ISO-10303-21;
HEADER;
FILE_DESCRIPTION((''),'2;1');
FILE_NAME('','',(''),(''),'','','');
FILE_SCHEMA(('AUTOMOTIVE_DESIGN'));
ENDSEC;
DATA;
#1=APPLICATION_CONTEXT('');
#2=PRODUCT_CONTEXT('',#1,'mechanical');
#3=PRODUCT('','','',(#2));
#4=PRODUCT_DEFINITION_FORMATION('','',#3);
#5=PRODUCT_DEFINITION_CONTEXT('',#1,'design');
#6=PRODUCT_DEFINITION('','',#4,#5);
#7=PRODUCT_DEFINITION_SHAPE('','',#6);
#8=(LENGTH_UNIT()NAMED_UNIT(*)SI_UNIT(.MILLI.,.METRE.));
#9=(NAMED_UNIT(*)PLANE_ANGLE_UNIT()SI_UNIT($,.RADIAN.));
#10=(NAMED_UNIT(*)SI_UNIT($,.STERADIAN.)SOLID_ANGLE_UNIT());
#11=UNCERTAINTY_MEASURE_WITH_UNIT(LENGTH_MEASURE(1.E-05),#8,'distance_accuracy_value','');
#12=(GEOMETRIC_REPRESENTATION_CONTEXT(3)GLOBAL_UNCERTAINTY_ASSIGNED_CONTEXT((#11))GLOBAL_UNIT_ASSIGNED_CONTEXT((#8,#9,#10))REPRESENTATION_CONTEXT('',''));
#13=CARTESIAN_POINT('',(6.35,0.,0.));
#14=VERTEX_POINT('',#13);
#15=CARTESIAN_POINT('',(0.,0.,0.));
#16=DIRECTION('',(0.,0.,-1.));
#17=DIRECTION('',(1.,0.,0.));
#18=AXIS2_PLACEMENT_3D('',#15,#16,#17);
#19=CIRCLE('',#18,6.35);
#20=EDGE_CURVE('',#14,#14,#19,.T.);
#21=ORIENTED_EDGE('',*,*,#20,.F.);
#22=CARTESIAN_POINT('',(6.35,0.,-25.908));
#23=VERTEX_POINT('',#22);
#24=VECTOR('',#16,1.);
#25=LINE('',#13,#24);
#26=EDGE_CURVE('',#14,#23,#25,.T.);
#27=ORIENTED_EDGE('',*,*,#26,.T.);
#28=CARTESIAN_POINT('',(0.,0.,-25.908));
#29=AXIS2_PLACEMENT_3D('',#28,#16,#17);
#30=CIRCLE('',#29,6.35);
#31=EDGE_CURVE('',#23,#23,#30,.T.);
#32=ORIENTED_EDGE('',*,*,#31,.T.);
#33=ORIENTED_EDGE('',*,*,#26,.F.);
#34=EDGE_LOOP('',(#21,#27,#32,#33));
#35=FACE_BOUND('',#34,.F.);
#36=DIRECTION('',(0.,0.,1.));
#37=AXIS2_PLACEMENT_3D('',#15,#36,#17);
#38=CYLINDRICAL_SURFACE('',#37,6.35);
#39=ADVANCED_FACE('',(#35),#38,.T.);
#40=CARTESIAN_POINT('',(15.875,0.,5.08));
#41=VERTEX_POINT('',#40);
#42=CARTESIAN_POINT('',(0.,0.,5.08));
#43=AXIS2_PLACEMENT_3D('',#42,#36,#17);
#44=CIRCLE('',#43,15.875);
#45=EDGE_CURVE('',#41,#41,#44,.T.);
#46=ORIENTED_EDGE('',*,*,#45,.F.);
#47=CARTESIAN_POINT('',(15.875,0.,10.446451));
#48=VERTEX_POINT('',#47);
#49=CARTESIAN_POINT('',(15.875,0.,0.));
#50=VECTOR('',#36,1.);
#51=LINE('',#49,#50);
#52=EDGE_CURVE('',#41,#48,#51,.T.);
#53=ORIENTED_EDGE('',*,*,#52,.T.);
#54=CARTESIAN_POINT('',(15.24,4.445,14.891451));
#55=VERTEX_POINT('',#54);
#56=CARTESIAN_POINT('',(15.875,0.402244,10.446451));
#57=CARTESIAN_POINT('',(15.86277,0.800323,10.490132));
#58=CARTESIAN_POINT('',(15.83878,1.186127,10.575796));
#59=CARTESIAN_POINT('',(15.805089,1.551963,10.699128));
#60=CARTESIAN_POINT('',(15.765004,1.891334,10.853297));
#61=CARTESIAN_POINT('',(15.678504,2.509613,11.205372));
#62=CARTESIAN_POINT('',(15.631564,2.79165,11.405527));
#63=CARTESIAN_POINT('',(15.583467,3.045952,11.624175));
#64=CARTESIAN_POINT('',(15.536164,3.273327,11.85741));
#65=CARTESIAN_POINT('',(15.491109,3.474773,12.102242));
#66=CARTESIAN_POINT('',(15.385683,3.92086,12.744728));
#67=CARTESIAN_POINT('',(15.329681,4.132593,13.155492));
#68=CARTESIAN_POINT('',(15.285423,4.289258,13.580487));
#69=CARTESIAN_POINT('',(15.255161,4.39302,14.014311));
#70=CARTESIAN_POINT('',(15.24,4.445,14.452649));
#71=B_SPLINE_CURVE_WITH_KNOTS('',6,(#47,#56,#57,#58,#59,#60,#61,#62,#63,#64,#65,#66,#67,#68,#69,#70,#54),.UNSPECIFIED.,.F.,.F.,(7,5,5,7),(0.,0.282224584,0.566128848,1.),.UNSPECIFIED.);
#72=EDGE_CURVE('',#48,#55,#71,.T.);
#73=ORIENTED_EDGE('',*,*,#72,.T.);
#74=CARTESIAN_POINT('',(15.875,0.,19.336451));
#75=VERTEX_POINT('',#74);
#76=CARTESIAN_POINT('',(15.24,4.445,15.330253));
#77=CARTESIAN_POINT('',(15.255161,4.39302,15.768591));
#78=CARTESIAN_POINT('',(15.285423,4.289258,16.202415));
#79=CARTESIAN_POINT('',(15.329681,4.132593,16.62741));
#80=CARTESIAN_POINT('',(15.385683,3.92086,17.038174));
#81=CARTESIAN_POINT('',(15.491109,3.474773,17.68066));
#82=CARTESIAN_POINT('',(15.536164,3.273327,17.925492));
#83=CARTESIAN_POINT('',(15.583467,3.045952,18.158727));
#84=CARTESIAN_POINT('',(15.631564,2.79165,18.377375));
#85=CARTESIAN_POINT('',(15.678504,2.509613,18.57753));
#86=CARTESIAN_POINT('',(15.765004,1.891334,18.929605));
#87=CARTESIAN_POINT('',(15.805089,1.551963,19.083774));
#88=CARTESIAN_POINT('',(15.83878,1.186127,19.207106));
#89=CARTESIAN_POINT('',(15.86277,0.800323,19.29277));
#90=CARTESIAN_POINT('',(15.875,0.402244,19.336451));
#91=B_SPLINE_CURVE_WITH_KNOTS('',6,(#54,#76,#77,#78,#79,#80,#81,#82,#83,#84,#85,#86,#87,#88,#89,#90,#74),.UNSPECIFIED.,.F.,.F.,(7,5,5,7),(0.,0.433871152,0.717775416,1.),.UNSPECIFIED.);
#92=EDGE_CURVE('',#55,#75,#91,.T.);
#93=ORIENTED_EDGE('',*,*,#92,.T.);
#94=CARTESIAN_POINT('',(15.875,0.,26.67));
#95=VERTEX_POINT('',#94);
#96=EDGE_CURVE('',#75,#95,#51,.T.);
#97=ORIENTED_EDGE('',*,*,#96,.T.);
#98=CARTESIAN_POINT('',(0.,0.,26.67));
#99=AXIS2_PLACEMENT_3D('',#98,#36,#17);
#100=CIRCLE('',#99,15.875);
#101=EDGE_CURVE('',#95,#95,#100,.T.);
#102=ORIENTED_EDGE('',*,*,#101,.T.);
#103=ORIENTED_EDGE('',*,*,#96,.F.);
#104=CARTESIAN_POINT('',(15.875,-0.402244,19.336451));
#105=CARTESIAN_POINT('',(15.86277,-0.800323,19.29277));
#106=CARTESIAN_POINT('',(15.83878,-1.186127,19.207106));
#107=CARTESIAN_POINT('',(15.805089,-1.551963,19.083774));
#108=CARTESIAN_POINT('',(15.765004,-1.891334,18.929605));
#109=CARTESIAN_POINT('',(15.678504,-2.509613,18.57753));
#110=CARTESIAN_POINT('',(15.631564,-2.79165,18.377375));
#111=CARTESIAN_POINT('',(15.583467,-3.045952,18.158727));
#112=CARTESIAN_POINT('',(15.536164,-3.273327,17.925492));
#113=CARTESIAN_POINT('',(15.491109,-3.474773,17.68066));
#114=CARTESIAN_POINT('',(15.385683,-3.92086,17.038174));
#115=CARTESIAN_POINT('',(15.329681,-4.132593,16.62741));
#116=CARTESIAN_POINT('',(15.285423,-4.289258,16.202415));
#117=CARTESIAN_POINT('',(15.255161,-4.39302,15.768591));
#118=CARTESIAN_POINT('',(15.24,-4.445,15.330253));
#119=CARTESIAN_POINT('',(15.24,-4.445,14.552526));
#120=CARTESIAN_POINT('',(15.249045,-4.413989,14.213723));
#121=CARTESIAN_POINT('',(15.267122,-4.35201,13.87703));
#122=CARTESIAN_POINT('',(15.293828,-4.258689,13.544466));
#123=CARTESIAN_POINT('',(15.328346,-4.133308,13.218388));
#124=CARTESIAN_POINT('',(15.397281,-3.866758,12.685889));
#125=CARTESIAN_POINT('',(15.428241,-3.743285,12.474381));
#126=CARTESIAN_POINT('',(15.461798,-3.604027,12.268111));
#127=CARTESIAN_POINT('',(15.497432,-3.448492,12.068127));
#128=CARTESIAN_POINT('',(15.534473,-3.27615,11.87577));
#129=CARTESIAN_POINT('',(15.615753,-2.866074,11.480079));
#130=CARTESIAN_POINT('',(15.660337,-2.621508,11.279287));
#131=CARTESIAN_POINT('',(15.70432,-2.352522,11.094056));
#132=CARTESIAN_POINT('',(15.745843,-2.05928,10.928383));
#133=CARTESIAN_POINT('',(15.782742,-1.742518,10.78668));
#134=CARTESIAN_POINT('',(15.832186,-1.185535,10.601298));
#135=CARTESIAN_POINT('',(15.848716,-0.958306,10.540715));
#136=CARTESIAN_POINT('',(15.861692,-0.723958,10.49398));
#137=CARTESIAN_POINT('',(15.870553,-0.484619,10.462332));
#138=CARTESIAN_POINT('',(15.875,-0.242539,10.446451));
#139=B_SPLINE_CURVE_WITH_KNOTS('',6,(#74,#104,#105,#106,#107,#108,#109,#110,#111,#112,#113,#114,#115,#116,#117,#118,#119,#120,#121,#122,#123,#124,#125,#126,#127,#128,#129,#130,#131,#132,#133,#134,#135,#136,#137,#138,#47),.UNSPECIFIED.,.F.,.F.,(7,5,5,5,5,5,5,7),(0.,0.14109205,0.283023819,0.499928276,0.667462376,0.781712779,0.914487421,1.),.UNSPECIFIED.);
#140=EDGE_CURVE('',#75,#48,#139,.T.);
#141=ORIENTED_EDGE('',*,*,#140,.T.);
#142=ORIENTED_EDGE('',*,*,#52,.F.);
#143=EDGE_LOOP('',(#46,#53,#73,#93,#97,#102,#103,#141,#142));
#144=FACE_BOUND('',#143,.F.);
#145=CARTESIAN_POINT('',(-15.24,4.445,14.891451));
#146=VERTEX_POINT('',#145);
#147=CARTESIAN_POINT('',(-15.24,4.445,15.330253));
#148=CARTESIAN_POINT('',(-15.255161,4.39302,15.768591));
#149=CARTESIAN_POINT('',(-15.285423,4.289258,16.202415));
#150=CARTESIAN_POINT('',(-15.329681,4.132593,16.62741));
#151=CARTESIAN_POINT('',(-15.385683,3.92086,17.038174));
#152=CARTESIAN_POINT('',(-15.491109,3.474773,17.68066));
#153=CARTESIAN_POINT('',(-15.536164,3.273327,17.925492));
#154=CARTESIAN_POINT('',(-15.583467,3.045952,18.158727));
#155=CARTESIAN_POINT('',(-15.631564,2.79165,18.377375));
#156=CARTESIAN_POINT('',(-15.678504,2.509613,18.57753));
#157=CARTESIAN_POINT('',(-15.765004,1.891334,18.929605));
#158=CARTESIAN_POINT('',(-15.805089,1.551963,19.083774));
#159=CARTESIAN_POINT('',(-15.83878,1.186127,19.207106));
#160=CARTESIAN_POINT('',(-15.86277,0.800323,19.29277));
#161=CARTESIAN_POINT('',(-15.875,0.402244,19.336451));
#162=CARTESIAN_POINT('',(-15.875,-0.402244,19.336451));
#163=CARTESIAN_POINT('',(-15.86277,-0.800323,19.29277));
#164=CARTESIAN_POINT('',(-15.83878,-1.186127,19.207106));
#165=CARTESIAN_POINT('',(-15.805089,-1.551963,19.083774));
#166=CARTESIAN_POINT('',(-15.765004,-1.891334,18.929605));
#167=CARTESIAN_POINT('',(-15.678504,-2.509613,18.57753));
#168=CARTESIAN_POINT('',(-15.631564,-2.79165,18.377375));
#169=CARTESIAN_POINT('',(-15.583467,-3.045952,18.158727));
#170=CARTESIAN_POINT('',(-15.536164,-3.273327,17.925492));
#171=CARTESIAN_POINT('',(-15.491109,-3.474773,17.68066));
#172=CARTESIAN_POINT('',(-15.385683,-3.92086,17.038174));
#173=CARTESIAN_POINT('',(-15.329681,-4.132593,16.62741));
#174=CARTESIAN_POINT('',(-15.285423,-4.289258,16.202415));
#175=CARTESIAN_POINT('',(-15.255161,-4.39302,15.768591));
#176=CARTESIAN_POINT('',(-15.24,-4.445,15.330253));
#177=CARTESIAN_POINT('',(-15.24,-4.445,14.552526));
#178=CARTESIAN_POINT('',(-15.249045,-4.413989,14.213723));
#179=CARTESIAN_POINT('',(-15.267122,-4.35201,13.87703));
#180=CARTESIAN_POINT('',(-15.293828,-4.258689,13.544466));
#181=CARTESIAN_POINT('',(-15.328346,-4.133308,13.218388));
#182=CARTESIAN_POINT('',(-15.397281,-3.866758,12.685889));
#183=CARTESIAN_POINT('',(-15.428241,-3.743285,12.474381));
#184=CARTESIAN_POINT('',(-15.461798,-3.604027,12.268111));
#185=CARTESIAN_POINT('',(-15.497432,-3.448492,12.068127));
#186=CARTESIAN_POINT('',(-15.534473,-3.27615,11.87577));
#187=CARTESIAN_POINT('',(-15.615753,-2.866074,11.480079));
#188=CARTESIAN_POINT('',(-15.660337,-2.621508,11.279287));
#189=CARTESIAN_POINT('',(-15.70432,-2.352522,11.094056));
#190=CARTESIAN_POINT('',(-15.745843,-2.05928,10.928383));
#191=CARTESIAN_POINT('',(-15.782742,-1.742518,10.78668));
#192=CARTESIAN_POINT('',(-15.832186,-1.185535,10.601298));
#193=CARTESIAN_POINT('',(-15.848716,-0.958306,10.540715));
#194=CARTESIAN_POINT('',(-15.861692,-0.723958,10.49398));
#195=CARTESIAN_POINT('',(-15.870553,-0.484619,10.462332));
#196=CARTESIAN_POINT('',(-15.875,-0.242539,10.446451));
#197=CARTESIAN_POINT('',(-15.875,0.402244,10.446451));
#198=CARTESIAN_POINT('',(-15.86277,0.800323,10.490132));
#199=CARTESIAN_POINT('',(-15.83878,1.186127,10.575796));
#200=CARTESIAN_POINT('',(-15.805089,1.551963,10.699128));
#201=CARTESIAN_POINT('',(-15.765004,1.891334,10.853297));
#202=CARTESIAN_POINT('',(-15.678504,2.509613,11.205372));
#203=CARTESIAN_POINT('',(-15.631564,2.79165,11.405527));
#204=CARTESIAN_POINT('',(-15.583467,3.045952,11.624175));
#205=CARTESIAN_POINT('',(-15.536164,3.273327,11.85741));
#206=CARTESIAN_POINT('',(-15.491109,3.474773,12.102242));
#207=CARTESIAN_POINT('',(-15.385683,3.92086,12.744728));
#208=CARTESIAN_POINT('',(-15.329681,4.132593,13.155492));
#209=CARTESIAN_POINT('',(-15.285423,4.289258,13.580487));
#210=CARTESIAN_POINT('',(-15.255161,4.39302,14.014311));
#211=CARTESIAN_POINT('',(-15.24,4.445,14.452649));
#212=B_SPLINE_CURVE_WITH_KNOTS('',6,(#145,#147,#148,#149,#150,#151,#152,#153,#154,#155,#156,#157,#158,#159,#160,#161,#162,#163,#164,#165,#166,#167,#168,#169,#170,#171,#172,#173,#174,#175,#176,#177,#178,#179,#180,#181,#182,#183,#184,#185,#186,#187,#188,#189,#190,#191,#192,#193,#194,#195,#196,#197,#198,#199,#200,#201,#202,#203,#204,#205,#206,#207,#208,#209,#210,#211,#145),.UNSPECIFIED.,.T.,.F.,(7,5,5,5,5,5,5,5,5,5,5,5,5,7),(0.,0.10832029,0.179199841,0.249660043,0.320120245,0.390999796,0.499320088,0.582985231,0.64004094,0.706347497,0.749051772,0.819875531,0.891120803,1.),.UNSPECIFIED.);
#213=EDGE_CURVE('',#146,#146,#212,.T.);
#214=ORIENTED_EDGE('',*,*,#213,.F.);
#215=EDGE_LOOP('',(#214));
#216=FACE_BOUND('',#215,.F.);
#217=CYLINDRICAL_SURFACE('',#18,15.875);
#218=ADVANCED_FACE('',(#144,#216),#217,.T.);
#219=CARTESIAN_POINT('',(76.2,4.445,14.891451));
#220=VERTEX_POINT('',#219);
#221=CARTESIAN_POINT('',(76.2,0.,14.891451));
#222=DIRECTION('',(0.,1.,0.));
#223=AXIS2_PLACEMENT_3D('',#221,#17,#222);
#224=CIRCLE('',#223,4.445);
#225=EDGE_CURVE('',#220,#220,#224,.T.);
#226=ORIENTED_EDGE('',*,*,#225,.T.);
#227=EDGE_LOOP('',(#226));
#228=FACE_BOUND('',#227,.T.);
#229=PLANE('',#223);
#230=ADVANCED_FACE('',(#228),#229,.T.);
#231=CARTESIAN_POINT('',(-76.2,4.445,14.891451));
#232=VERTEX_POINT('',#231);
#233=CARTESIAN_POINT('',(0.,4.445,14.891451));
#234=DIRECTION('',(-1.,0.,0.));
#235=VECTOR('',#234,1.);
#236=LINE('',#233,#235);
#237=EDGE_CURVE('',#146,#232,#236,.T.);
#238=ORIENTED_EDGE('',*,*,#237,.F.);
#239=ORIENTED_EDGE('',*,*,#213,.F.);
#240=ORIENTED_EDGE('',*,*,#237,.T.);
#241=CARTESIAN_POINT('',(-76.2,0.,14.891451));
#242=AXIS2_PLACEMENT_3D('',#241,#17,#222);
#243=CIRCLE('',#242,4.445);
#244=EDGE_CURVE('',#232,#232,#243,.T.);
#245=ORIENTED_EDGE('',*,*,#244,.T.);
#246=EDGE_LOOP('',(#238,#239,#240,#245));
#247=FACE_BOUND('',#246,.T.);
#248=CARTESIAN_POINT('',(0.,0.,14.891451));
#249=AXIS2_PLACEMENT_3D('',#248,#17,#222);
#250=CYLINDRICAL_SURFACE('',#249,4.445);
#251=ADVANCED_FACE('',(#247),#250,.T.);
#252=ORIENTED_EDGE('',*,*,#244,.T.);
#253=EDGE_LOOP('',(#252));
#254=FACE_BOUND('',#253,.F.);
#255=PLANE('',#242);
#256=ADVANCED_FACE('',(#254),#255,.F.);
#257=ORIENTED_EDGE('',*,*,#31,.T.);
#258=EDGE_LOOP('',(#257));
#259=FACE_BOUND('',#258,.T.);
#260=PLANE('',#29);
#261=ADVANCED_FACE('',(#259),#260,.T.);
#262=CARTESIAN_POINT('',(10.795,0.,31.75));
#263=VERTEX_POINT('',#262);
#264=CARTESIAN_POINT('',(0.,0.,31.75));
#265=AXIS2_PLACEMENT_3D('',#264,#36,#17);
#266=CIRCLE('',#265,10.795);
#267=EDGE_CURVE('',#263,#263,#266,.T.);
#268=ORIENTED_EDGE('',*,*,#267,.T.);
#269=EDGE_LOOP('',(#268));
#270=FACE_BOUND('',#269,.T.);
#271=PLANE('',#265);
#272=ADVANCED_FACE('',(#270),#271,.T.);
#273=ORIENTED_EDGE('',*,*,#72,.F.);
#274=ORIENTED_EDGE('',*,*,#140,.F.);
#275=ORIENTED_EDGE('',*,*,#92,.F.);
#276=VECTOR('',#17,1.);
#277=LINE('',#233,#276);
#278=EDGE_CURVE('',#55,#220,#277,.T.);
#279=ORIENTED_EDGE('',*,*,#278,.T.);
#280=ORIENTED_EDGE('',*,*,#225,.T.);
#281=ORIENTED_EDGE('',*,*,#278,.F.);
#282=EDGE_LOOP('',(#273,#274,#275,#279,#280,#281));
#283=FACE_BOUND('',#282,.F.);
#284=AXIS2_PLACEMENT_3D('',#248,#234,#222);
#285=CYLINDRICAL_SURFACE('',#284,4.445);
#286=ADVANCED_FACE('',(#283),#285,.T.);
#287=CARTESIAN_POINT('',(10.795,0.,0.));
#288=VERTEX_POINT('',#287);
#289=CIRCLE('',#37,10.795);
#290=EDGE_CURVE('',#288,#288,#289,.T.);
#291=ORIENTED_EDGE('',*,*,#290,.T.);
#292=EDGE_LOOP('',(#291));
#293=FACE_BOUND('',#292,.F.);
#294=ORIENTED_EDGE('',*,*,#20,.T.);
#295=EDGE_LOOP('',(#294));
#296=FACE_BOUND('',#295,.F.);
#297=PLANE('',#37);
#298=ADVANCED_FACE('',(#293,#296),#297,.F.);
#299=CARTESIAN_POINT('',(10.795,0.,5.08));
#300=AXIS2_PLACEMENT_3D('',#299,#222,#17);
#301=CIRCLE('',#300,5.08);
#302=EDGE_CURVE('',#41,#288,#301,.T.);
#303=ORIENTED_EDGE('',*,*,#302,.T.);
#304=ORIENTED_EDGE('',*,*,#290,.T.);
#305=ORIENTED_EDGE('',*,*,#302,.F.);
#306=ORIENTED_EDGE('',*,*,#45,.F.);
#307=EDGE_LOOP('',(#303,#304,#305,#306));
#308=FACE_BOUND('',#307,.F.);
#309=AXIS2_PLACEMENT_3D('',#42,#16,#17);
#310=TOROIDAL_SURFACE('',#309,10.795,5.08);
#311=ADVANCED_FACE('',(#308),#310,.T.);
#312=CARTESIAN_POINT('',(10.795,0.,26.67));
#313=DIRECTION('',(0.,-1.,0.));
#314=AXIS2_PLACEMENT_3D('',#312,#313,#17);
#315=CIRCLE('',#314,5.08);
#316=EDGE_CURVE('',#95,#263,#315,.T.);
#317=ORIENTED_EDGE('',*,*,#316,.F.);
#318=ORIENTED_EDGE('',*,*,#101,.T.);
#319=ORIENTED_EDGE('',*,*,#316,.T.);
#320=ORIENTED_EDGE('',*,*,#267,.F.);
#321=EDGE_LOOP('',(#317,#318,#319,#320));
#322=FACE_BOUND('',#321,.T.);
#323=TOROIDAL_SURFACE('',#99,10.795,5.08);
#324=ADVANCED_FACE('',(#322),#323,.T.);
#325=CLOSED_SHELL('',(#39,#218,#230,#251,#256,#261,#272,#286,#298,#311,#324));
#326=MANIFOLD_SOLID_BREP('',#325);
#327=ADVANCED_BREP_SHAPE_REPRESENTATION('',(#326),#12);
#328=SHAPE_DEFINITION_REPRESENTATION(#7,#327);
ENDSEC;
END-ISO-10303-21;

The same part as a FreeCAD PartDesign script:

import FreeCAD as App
import Part
import Sketcher
Q = App.Units.Quantity


def edges_at(feature, points):
    """Names of the edges that pass closest to the given points."""
    edges = feature.Shape.Edges
    near = lambda p: min(range(len(edges)), key=lambda i: edges[i].distToShape(Part.Vertex(*p))[0])
    return sorted({f"Edge{near(p) + 1}" for p in points})

doc = App.newDocument("Part")
params = doc.addObject("Spreadsheet::Sheet", "Params")
for row, (alias, value) in enumerate([
    ("sketch1_diameter", "1.25 in"),
    ("pad1_length", "1.25 in"),
    ("sketch2_diameter", "0.35 in"),
    ("pad2_length", "3 in"),
    ("sketch3_diameter", "0.35 in"),
    ("pad3_length", "3 in"),
    ("sketch4_diameter", "0.5 in"),
    ("pad4_length", "1.02 in"),
    ("fillet_radius", "0.2 in"),
], start=1):
    params.set(f"A{row}", alias)
    params.set(f"B{row}", "=" + value)
    params.setAlias(f"B{row}", alias)

body = doc.addObject("PartDesign::Body", "Body")

# Sketch on XY plane
sketch1 = body.newObject("Sketcher::SketchObject", "Sketch")
sketch1.AttachmentSupport = (doc.getObject("XY_Plane"), [""])
sketch1.MapMode = "FlatFace"
sketch1.addGeometry(Part.Circle(App.Vector(0, 0, 0), App.Vector(0, 0, 1), 15.875), False)
sketch1.addConstraint(Sketcher.Constraint("Coincident", 0, 3, -1, 1))
sketch1.addConstraint(Sketcher.Constraint("Diameter", 0, Q("1.25 in")))
sketch1.setExpression("Constraints[1]", "Params.sketch1_diameter")
pad1 = body.newObject("PartDesign::Pad", "Pad")
pad1.Profile = sketch1
pad1.setExpression("Length", "Params.pad1_length")

# Sketch on YZ plane
sketch2 = body.newObject("Sketcher::SketchObject", "Sketch001")
sketch2.AttachmentSupport = (doc.getObject("YZ_Plane"), [""])
sketch2.MapMode = "FlatFace"
sketch2.addGeometry(Part.Circle(App.Vector(0, 14.891451, 0), App.Vector(0, 0, 1), 4.445), False)
sketch2.addConstraint(Sketcher.Constraint("PointOnObject", 0, 3, -2))
sketch2.addConstraint(Sketcher.Constraint("Diameter", 0, Q("0.35 in")))
sketch2.addConstraint(Sketcher.Constraint("DistanceY", -1, 1, 0, 3, 14.891451))
sketch2.setExpression("Constraints[1]", "Params.sketch2_diameter")
pad2 = body.newObject("PartDesign::Pad", "Pad001")
pad2.Profile = sketch2
pad2.setExpression("Length", "Params.pad2_length")

# Sketch on YZ plane
sketch3 = body.newObject("Sketcher::SketchObject", "Sketch002")
sketch3.AttachmentSupport = (doc.getObject("YZ_Plane"), [""])
sketch3.MapMode = "FlatFace"
sketch3.addGeometry(Part.Circle(App.Vector(0, 14.891451, 0), App.Vector(0, 0, 1), 4.445), False)
sketch3.addConstraint(Sketcher.Constraint("PointOnObject", 0, 3, -2))
sketch3.addConstraint(Sketcher.Constraint("Diameter", 0, Q("0.35 in")))
sketch3.addConstraint(Sketcher.Constraint("DistanceY", -1, 1, 0, 3, 14.891451))
sketch3.setExpression("Constraints[1]", "Params.sketch3_diameter")
pad3 = body.newObject("PartDesign::Pad", "Pad002")
pad3.Profile = sketch3
pad3.setExpression("Length", "Params.pad3_length")
pad3.Reversed = True

# Sketch on XY plane
sketch4 = body.newObject("Sketcher::SketchObject", "Sketch003")
sketch4.AttachmentSupport = (doc.getObject("XY_Plane"), [""])
sketch4.MapMode = "FlatFace"
sketch4.addGeometry(Part.Circle(App.Vector(0, 0, 0), App.Vector(0, 0, 1), 6.35), False)
sketch4.addConstraint(Sketcher.Constraint("Coincident", 0, 3, -1, 1))
sketch4.addConstraint(Sketcher.Constraint("Diameter", 0, Q("0.5 in")))
sketch4.setExpression("Constraints[1]", "Params.sketch4_diameter")
pad4 = body.newObject("PartDesign::Pad", "Pad003")
pad4.Profile = sketch4
pad4.setExpression("Length", "Params.pad4_length")
pad4.Reversed = True
doc.recompute()

fillet = body.newObject("PartDesign::Fillet", "Fillet")
fillet.Base = (pad4, edges_at(pad4, [(-15.875, 0, 31.75), (-15.875, 0, 0)]))
fillet.setExpression("Radius", "Params.fillet_radius")

doc.recompute()
